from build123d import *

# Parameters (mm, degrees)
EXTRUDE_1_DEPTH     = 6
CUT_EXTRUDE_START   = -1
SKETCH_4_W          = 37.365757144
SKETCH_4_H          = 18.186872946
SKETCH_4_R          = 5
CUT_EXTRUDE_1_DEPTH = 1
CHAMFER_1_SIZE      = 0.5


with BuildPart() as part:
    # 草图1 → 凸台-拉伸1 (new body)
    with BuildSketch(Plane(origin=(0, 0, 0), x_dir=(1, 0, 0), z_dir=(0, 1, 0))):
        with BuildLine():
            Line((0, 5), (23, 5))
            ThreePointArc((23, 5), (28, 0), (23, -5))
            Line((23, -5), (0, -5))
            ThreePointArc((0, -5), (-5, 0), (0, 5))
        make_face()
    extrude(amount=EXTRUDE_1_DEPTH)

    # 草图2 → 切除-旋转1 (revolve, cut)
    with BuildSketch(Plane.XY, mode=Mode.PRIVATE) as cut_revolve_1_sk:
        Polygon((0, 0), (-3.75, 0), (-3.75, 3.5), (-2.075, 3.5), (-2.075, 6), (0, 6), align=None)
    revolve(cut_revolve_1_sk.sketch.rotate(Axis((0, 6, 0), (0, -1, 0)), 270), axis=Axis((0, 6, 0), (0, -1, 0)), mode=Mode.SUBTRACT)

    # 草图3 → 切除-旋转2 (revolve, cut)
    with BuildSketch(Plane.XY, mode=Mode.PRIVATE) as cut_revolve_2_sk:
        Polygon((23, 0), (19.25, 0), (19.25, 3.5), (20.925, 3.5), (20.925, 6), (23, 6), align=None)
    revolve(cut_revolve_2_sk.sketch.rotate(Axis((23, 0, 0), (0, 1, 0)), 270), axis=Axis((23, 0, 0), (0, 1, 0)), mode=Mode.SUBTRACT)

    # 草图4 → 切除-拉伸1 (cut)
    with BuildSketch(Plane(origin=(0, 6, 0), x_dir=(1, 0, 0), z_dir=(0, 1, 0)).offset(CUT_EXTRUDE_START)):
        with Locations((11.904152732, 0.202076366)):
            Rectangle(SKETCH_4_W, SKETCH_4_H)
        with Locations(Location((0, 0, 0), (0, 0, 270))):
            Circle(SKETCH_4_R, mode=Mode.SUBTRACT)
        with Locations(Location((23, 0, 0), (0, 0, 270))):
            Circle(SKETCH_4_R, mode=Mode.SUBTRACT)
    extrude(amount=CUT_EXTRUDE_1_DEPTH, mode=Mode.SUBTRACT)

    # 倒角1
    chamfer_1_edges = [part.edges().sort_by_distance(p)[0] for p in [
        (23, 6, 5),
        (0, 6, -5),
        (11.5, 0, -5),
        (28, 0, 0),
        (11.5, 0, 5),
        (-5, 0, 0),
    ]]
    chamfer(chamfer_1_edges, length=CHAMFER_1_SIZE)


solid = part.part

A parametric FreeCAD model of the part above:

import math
import FreeCAD as App
import Part
import Sketcher
from FreeCAD import Vector


def edges_at(feature, points):
    """Names of the edges that pass closest to the given points."""
    edges = feature.Shape.Edges
    near = lambda p: min(range(len(edges)), key=lambda i: edges[i].distToShape(Part.Vertex(*p))[0])
    return sorted({f"Edge{near(p) + 1}" for p in points})


def add_polygon(sketch, points):
    """Adds a closed chain of lines whose ends are joined by coincident constraints."""
    first, n = sketch.GeometryCount, len(points)
    for a, b in zip(points, points[1:] + points[:1]):
        sketch.addGeometry(Part.LineSegment(App.Vector(*a, 0), App.Vector(*b, 0)), False)
    for i in range(n):
        sketch.addConstraint(Sketcher.Constraint("Coincident", first + i, 2, first + (i + 1) % n, 1))

doc = App.newDocument("Part")
body = doc.addObject("PartDesign::Body", "Body")

# Sketch on XZ plane
sketch1 = body.newObject("Sketcher::SketchObject", "Sketch")
sketch1.AttachmentSupport = (doc.getObject("XZ_Plane"), [""])
sketch1.MapMode = "FlatFace"
sketch1.addGeometry(Part.LineSegment(Vector(23, -5, 0), Vector(0, -5, 0)), False)
sketch1.addGeometry(Part.ArcOfCircle(Part.Circle(Vector(0, 0, 0), Vector(0, 0, 1), 5), math.radians(90), math.radians(270)), False)
sketch1.addGeometry(Part.LineSegment(Vector(0, 5, 0), Vector(23, 5, 0)), False)
sketch1.addGeometry(Part.ArcOfCircle(Part.Circle(Vector(23, 0, 0), Vector(0, 0, 1), 5), math.radians(-90), math.radians(90)), False)
sketch1.addConstraint(Sketcher.Constraint("Tangent", 0, 2, 1, 2))
sketch1.addConstraint(Sketcher.Constraint("Tangent", 1, 1, 2, 1))
sketch1.addConstraint(Sketcher.Constraint("Tangent", 2, 2, 3, 2))
sketch1.addConstraint(Sketcher.Constraint("Tangent", 3, 1, 0, 1))
sketch1.addConstraint(Sketcher.Constraint("Horizontal", 0))
sketch1.addConstraint(Sketcher.Constraint("Horizontal", 2))
sketch1.addConstraint(Sketcher.Constraint("Coincident", 1, 3, -1, 1))
sketch1.addConstraint(Sketcher.Constraint("Radius", 1, 5.0))
sketch1.addConstraint(Sketcher.Constraint("DistanceX", 0, 2, 0, 1, 23.0))
pad1 = body.newObject("PartDesign::Pad", "Pad")
pad1.Profile = sketch1
pad1.Length = 6
pad1.Reversed = True

# Sketch on XY plane
sketch2 = body.newObject("Sketcher::SketchObject", "Sketch001")
sketch2.AttachmentSupport = (doc.getObject("XY_Plane"), [""])
sketch2.MapMode = "FlatFace"
add_polygon(sketch2, [(-3.8, 0), (0, 0), (0, 6), (-2.1, 6), (-2.1, 3.5), (-3.8, 3.5)])  # lines 0-5
sketch2.addConstraint(Sketcher.Constraint("Horizontal", 0))
sketch2.addConstraint(Sketcher.Constraint("Vertical", 1))
sketch2.addConstraint(Sketcher.Constraint("Horizontal", 2))
sketch2.addConstraint(Sketcher.Constraint("Vertical", 3))
sketch2.addConstraint(Sketcher.Constraint("Horizontal", 4))
sketch2.addConstraint(Sketcher.Constraint("Vertical", 5))
sketch2.addConstraint(Sketcher.Constraint("Coincident", 0, 2, -1, 1))
sketch2.addConstraint(Sketcher.Constraint("DistanceY", 1, 1, 1, 2, 6.0))
sketch2.addConstraint(Sketcher.Constraint("DistanceY", 3, 2, 3, 1, 2.5))
sketch2.addConstraint(Sketcher.Constraint("DistanceX", 0, 1, 0, 2, 3.75))
sketch2.addConstraint(Sketcher.Constraint("DistanceX", 2, 2, 2, 1, 2.075))
groove = body.newObject("PartDesign::Groove", "Groove")
groove.Profile = sketch2
groove.ReferenceAxis = (sketch2, ["V_Axis"])
groove.Angle = 360

# Sketch on XY plane
sketch3 = body.newObject("Sketcher::SketchObject", "Sketch002")
sketch3.AttachmentSupport = (doc.getObject("XY_Plane"), [""])
sketch3.MapMode = "FlatFace"
add_polygon(sketch3, [(19.2, 0), (23, 0), (23, 6), (20.9, 6), (20.9, 3.5), (19.2, 3.5)])  # lines 0-5
sketch3.addGeometry(Part.LineSegment(Vector(23, 0, 0), Vector(23, 6, 0)), True)  # axis
sketch3.addConstraint(Sketcher.Constraint("Horizontal", 0))
sketch3.addConstraint(Sketcher.Constraint("Vertical", 1))
sketch3.addConstraint(Sketcher.Constraint("Horizontal", 2))
sketch3.addConstraint(Sketcher.Constraint("Vertical", 3))
sketch3.addConstraint(Sketcher.Constraint("Horizontal", 4))
sketch3.addConstraint(Sketcher.Constraint("Vertical", 5))
sketch3.addConstraint(Sketcher.Constraint("Vertical", 6))
sketch3.addConstraint(Sketcher.Constraint("Coincident", 6, 1, 0, 2))
sketch3.addConstraint(Sketcher.Constraint("PointOnObject", 0, 2, -1))
sketch3.addConstraint(Sketcher.Constraint("Horizontal", 2, 2, 6, 2))
sketch3.addConstraint(Sketcher.Constraint("DistanceY", 1, 1, 1, 2, 6.0))
sketch3.addConstraint(Sketcher.Constraint("DistanceY", 3, 2, 3, 1, 2.5))
sketch3.addConstraint(Sketcher.Constraint("DistanceX", -1, 1, 0, 2, 23.0))
sketch3.addConstraint(Sketcher.Constraint("DistanceX", 0, 1, 0, 2, 3.75))
sketch3.addConstraint(Sketcher.Constraint("DistanceX", 2, 2, 2, 1, 2.075))
groove2 = body.newObject("PartDesign::Groove", "Groove001")
groove2.Profile = sketch3
groove2.ReferenceAxis = (sketch3, ["Axis0"])
groove2.Angle = 360

# Sketch on XZ plane
sketch4 = body.newObject("Sketcher::SketchObject", "Sketch003")
sketch4.AttachmentSupport = (doc.getObject("XZ_Plane"), [""])
sketch4.MapMode = "FlatFace"
sketch4.AttachmentOffset = App.Placement(Vector(0, 0, -5), App.Rotation())
add_polygon(sketch4, [(-7, -9), (-7, 9), (31, 9), (31, -9)])  # lines 0-3
sketch4.addGeometry(Part.Circle(Vector(0, 0, 0), Vector(0, 0, 1), 5), False)  # 4
sketch4.addGeometry(Part.Circle(Vector(23, 0, 0), Vector(0, 0, 1), 5), False)  # 5
sketch4.addConstraint(Sketcher.Constraint("Vertical", 0))
sketch4.addConstraint(Sketcher.Constraint("Horizontal", 1))
sketch4.addConstraint(Sketcher.Constraint("Vertical", 2))
sketch4.addConstraint(Sketcher.Constraint("Horizontal", 3))
sketch4.addConstraint(Sketcher.Constraint("Coincident", 4, 3, -1, 1))
sketch4.addConstraint(Sketcher.Constraint("Equal", 4, 5))
sketch4.addConstraint(Sketcher.Constraint("PointOnObject", 5, 3, -1))
sketch4.addConstraint(Sketcher.Constraint("Diameter", 4, 10.0))
sketch4.addConstraint(Sketcher.Constraint("DistanceX", -1, 1, 5, 3, 23.0))
sketch4.addConstraint(Sketcher.Constraint("DistanceX", 1, 1, 1, 2, 37.365757))
sketch4.addConstraint(Sketcher.Constraint("DistanceY", 0, 1, 0, 2, 18.186873))
sketch4.addConstraint(Sketcher.Constraint("DistanceY", -1, 1, 0, 2, 8.89136))
sketch4.addConstraint(Sketcher.Constraint("DistanceX", -1, 1, 1, 2, 30.587031))
pocket1 = body.newObject("PartDesign::Pocket", "Pocket")
pocket1.Profile = sketch4
pocket1.Length = 1
doc.recompute()

chamfer = body.newObject("PartDesign::Chamfer", "Chamfer")
chamfer.Base = (pocket1, edges_at(pocket1, [
    (23, 6, 5),
    (0, 6, -5),
    (11.5, 0, -5),
    (28, 0, 0),
    (11.5, 0, 5),
    (-5, 0, 0),
]))
chamfer.Size = 0.5

doc.recompute()
